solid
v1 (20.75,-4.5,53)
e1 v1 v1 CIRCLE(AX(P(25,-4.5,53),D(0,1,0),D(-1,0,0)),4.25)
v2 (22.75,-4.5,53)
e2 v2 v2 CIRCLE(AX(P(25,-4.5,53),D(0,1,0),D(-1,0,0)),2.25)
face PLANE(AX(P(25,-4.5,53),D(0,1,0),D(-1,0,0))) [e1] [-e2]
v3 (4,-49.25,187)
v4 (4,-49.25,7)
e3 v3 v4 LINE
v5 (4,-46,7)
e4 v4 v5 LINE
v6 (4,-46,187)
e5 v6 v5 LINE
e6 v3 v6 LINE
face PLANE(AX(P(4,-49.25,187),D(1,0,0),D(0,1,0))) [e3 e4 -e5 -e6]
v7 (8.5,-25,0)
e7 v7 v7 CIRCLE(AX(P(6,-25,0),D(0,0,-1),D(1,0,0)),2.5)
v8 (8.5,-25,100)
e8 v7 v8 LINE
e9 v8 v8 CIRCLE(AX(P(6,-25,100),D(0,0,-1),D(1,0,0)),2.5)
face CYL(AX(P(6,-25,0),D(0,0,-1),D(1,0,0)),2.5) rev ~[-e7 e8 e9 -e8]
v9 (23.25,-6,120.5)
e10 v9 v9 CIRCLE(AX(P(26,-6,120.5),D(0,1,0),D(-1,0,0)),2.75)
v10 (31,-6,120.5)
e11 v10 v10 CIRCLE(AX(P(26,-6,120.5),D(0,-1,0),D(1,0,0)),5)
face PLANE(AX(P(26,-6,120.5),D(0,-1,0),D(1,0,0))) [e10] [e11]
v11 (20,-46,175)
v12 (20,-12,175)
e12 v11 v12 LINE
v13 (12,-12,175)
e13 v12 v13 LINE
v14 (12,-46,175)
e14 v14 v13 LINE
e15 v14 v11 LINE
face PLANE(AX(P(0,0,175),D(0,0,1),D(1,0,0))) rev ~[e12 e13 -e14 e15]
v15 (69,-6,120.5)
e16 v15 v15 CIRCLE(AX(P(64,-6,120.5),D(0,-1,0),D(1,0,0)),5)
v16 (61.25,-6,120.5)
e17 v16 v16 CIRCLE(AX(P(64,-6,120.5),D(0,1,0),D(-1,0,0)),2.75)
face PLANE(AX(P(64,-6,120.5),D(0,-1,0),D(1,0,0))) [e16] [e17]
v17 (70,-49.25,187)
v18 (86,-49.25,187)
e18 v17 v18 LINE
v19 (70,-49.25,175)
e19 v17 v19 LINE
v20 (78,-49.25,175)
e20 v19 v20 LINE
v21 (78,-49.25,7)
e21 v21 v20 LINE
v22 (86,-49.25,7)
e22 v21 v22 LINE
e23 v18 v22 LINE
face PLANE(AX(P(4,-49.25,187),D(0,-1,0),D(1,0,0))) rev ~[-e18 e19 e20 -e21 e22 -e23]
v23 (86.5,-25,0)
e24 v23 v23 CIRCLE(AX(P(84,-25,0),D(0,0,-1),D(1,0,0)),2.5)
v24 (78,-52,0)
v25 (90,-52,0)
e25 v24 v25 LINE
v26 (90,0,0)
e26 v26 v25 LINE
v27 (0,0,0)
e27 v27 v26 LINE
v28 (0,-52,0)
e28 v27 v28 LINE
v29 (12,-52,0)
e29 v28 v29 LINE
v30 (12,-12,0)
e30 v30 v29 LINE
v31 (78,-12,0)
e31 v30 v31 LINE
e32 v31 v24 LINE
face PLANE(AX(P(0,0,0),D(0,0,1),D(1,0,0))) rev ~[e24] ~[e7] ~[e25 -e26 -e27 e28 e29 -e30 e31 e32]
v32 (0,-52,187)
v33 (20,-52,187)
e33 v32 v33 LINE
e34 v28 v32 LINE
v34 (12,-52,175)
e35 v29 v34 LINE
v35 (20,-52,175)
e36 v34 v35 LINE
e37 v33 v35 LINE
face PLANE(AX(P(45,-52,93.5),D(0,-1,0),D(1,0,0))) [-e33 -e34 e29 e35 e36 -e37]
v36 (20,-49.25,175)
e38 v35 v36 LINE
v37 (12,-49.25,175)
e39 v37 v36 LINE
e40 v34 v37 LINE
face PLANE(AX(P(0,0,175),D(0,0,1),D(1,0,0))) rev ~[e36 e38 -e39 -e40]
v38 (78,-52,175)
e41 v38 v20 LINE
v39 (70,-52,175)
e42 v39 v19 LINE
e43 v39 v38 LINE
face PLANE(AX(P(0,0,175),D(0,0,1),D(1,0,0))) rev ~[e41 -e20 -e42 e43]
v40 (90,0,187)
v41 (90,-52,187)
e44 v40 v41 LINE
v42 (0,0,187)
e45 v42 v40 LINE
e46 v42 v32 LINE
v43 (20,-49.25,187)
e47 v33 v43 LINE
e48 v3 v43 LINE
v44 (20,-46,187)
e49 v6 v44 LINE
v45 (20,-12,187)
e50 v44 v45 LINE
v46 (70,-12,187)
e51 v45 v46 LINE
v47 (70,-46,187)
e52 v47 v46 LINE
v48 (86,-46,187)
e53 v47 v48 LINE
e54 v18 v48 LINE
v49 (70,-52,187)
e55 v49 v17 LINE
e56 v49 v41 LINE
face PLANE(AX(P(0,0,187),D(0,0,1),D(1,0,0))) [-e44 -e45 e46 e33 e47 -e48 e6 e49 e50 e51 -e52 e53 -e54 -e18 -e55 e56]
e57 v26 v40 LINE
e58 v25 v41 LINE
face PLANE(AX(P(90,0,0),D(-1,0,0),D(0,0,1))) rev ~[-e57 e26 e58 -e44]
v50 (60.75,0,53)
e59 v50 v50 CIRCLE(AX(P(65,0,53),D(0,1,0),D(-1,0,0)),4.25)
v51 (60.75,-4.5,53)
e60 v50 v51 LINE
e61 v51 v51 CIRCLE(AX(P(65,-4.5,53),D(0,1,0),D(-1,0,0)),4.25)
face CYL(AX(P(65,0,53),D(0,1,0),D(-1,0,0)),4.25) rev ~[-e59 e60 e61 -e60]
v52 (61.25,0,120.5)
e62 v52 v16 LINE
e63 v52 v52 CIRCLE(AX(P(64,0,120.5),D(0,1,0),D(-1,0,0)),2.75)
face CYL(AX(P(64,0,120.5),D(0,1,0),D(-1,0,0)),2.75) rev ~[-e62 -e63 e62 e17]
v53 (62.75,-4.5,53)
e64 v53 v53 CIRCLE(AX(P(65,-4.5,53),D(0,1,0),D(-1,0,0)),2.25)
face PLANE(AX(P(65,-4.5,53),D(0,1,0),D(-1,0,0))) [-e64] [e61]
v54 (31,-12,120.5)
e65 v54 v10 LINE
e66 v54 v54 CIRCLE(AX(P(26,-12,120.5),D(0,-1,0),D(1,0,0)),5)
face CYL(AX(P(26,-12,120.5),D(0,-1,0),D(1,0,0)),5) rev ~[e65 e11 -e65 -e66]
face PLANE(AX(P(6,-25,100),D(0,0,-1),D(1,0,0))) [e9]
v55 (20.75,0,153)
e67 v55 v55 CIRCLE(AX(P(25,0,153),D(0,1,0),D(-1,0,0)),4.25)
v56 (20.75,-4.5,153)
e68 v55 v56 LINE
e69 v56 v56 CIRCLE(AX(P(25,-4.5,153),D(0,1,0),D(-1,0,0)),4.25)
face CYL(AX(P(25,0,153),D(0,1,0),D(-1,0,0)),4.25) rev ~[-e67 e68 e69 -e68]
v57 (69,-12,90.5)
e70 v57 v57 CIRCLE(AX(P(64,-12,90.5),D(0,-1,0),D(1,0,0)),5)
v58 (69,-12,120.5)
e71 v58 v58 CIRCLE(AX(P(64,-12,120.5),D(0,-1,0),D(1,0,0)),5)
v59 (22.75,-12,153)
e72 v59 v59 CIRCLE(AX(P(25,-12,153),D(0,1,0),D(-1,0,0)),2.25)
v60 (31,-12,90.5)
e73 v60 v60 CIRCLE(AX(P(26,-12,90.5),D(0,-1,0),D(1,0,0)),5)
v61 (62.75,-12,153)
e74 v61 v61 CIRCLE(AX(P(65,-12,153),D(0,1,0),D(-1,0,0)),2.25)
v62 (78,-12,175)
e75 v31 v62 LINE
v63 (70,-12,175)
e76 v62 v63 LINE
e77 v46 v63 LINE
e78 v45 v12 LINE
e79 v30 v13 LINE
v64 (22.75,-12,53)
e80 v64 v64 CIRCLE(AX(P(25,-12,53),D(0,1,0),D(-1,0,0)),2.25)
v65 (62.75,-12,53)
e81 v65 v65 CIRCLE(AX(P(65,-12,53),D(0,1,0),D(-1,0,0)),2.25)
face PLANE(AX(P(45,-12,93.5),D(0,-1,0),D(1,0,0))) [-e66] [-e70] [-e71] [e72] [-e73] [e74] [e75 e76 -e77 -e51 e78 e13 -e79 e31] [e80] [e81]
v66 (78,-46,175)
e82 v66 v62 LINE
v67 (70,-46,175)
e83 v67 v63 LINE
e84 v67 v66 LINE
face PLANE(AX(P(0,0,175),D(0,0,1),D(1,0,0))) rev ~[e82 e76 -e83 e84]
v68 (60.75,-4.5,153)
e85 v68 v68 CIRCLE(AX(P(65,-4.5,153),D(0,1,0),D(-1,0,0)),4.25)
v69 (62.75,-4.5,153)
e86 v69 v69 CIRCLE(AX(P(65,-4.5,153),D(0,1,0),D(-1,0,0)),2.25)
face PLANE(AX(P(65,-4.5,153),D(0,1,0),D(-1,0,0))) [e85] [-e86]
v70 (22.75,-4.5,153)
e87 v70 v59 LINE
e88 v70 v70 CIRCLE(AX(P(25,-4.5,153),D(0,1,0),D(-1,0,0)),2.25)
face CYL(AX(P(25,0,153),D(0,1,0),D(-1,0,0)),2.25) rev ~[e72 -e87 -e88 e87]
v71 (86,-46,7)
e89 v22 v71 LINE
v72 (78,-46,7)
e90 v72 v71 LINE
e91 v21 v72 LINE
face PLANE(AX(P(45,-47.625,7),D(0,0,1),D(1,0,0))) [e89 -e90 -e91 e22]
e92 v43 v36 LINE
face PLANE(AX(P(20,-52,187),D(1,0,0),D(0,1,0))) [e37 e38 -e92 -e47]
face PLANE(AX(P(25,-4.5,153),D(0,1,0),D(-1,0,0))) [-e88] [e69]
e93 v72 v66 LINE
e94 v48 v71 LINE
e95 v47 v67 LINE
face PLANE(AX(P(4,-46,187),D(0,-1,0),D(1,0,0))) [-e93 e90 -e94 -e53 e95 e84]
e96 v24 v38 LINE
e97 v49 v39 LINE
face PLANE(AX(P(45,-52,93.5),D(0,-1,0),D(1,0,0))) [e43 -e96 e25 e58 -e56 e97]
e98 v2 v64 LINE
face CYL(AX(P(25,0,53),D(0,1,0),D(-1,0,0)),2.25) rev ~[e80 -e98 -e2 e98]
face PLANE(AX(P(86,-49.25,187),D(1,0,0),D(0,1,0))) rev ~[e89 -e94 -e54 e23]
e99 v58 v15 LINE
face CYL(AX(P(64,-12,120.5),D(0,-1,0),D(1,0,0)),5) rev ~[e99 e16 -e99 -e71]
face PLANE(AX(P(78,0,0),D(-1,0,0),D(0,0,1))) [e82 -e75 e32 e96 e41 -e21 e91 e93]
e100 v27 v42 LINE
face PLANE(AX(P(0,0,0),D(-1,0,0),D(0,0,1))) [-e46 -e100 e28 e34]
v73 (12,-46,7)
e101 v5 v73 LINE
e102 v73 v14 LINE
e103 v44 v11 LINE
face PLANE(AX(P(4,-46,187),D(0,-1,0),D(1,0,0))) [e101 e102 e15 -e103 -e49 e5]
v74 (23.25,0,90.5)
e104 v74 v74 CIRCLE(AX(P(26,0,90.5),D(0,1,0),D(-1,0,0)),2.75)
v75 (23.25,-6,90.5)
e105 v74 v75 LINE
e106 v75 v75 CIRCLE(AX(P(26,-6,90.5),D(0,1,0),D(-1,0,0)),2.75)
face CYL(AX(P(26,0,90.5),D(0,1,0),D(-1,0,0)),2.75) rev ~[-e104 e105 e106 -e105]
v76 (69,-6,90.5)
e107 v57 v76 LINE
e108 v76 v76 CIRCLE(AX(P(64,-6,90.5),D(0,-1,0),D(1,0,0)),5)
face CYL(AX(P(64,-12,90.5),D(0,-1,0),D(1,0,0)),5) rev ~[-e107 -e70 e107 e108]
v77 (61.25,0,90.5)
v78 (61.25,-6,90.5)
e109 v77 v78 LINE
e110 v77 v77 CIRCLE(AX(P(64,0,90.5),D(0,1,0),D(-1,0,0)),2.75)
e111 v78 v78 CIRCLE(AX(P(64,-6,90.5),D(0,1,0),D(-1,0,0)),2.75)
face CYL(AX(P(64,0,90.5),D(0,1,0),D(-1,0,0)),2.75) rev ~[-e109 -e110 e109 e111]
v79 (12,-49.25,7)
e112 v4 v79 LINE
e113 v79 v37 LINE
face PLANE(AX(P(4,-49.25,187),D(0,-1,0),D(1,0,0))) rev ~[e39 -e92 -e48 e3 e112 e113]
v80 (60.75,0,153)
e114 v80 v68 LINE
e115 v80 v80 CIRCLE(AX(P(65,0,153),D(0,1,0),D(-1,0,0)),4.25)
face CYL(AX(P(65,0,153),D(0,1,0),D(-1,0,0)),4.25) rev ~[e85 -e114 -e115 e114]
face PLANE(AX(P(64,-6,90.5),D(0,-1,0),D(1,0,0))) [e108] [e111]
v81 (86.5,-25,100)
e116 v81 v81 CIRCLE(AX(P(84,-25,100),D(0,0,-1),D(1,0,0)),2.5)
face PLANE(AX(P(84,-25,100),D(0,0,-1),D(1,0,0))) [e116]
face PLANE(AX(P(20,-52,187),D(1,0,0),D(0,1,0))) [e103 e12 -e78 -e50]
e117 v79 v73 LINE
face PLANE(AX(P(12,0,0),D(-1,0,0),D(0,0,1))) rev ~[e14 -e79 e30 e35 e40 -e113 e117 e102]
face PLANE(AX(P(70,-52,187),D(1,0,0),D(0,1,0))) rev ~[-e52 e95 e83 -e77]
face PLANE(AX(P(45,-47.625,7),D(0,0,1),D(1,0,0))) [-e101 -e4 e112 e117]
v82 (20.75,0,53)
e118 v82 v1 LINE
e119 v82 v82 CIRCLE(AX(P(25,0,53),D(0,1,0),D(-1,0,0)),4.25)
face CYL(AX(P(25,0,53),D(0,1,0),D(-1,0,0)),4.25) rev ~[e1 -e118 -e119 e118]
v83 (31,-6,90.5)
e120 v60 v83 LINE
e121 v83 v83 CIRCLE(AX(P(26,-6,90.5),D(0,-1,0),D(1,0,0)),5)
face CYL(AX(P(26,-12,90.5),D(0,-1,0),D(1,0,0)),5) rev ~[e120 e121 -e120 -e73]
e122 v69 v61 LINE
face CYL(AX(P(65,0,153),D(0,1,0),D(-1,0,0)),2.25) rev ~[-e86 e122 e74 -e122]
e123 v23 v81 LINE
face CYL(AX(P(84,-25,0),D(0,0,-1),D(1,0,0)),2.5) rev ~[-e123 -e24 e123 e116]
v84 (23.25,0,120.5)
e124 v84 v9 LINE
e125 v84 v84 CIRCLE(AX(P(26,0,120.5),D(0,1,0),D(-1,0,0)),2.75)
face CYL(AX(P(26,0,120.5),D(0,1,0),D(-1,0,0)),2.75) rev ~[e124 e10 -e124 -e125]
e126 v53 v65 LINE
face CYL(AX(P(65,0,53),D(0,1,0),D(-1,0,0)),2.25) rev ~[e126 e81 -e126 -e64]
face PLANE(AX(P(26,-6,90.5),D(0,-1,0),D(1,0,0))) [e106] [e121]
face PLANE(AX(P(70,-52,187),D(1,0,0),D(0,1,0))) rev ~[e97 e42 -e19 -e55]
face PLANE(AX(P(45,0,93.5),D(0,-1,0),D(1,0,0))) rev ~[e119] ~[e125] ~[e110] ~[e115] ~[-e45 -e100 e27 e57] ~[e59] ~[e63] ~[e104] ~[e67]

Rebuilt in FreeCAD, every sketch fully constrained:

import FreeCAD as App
import Part
import Sketcher

V = App.Vector
Q = App.Units.Quantity


def faces_at(feature, points):
    """Names of the faces that lie closest to the given points."""
    faces = feature.Shape.Faces
    near = lambda p: min(range(len(faces)), key=lambda i: faces[i].distToShape(Part.Vertex(*p))[0])
    return sorted({f"Face{near(p) + 1}" for p in points})


def add_polygon(sketch, points):
    """Adds a closed chain of lines whose ends are joined by coincident constraints."""
    first, n = sketch.GeometryCount, len(points)
    for a, b in zip(points, points[1:] + points[:1]):
        sketch.addGeometry(Part.LineSegment(App.Vector(*a, 0), App.Vector(*b, 0)), False)
    for i in range(n):
        sketch.addConstraint(Sketcher.Constraint("Coincident", first + i, 2, first + (i + 1) % n, 1))

doc = App.newDocument("Part")
params = doc.addObject("Spreadsheet::Sheet", "Params")
for row, (alias, value) in enumerate([
    ("sketch1_width", "90 mm"),
    ("sketch1_height", "187 mm"),
    ("pad1_length", "52 mm"),
    ("thickness_wall", "12 mm"),
    ("sketch2_width", "50 mm"),
    ("sketch2_height", "40 mm"),
    ("pocket1_length", "25 mm"),
    ("sketch3_diameter", "4.5 mm"),
    ("sketch3_diameter2", "5.5 mm"),
    ("sketch4_diameter", "10 mm"),
    ("pocket3_length", "6 mm"),
    ("sketch5_diameter", "8.5 mm"),
    ("pocket4_length", "4.5 mm"),
    ("sketch6_diameter", "5 mm"),
    ("pocket5_length", "100 mm"),
    ("sketch7_width", "82 mm"),
    ("sketch7_height", "3.25 mm"),
    ("pocket6_length", "180 mm"),
], start=1):
    params.set(f"A{row}", alias)
    params.set(f"B{row}", "=" + value)
    params.setAlias(f"B{row}", alias)

body = doc.addObject("PartDesign::Body", "Body")

# Sketch on XZ plane
sketch1 = body.newObject("Sketcher::SketchObject", "Sketch")
sketch1.AttachmentSupport = (doc.getObject("XZ_Plane"), [""])
sketch1.MapMode = "FlatFace"
add_polygon(sketch1, [(0, 187), (0, 0), (90, 0), (90, 187)])  # lines 0-3
sketch1.addConstraint([
    Sketcher.Constraint("Vertical", 0),
    Sketcher.Constraint("Horizontal", 1),
    Sketcher.Constraint("Vertical", 2),
    Sketcher.Constraint("Horizontal", 3),
    Sketcher.Constraint("Coincident", 0, 2, -1, 1),
    Sketcher.Constraint("DistanceX", 1, 1, 1, 2, Q("90 mm")),
    Sketcher.Constraint("DistanceY", 0, 2, 0, 1, Q("187 mm")),
])
sketch1.setExpression("Constraints[9]", "Params.sketch1_width")
sketch1.setExpression("Constraints[10]", "Params.sketch1_height")
pad1 = body.newObject("PartDesign::Pad", "Pad")
pad1.Profile = sketch1
pad1.setExpression("Length", "Params.pad1_length")
doc.recompute()

thickness = body.newObject("PartDesign::Thickness", "Thickness")
thickness.Base = (pad1, faces_at(pad1, [(45, -52, 93.5), (45, -26, 0)]))
thickness.setExpression("Value", "Params.thickness_wall")
thickness.Reversed = True
thickness.Join = "Arc"

# Sketch on XY plane
sketch2 = body.newObject("Sketcher::SketchObject", "Sketch001")
sketch2.AttachmentSupport = (doc.getObject("XY_Plane"), [""])
sketch2.MapMode = "FlatFace"
sketch2.AttachmentOffset = App.Placement(V(0, 0, 187), App.Rotation())
add_polygon(sketch2, [(20, -12), (20, -52), (70, -52), (70, -12)])  # lines 0-3
sketch2.addConstraint([
    Sketcher.Constraint("Vertical", 0),
    Sketcher.Constraint("Horizontal", 1),
    Sketcher.Constraint("Vertical", 2),
    Sketcher.Constraint("Horizontal", 3),
    Sketcher.Constraint("DistanceX", 1, 1, 1, 2, Q("50 mm")),
    Sketcher.Constraint("DistanceY", 0, 2, 0, 1, Q("40 mm")),
    Sketcher.Constraint("DistanceX", -1, 1, 0, 2, Q("20 mm")),
    Sketcher.Constraint("DistanceY", 0, 2, -1, 1, Q("52 mm")),
])
sketch2.setExpression("Constraints[8]", "Params.sketch2_width")
sketch2.setExpression("Constraints[9]", "Params.sketch2_height")
pocket1 = body.newObject("PartDesign::Pocket", "Pocket")
pocket1.Profile = sketch2
pocket1.setExpression("Length", "Params.pocket1_length")

# Sketch on XZ plane
sketch3 = body.newObject("Sketcher::SketchObject", "Sketch002")
sketch3.AttachmentSupport = (doc.getObject("XZ_Plane"), [""])
sketch3.MapMode = "FlatFace"
sketch3.addGeometry([
    Part.Circle(V(65, 53, 0), V(0, 0, 1), 2.2),  # 0
    Part.Circle(V(25, 53, 0), V(0, 0, 1), 2.2),  # 1
    Part.Circle(V(65, 153, 0), V(0, 0, 1), 2.2),  # 2
    Part.Circle(V(25, 153, 0), V(0, 0, 1), 2.2),  # 3
    Part.Circle(V(26, 120.5, 0), V(0, 0, 1), 2.8),  # 4
    Part.Circle(V(64, 120.5, 0), V(0, 0, 1), 2.8),  # 5
    Part.Circle(V(26, 90.5, 0), V(0, 0, 1), 2.8),  # 6
    Part.Circle(V(64, 90.5, 0), V(0, 0, 1), 2.8),  # 7
], False)
sketch3.addConstraint([
    Sketcher.Constraint("Equal", 0, 1),
    Sketcher.Constraint("Equal", 1, 2),
    Sketcher.Constraint("Equal", 2, 3),
    Sketcher.Constraint("Equal", 4, 5),
    Sketcher.Constraint("Equal", 5, 6),
    Sketcher.Constraint("Equal", 6, 7),
    Sketcher.Constraint("Horizontal", 0, 3, 1, 3),
    Sketcher.Constraint("Horizontal", 2, 3, 3, 3),
    Sketcher.Constraint("Horizontal", 4, 3, 5, 3),
    Sketcher.Constraint("Horizontal", 6, 3, 7, 3),
    Sketcher.Constraint("Vertical", 0, 3, 2, 3),
    Sketcher.Constraint("Vertical", 1, 3, 3, 3),
    Sketcher.Constraint("Vertical", 4, 3, 6, 3),
    Sketcher.Constraint("Vertical", 5, 3, 7, 3),
    Sketcher.Constraint("Diameter", 0, Q("4.5 mm")),
    Sketcher.Constraint("Diameter", 4, Q("5.5 mm")),
    Sketcher.Constraint("DistanceX", -1, 1, 0, 3, Q("65 mm")),
    Sketcher.Constraint("DistanceY", -1, 1, 0, 3, Q("53 mm")),
    Sketcher.Constraint("DistanceX", -1, 1, 1, 3, Q("25 mm")),
    Sketcher.Constraint("DistanceY", -1, 1, 2, 3, Q("153 mm")),
    Sketcher.Constraint("DistanceX", -1, 1, 4, 3, Q("26 mm")),
    Sketcher.Constraint("DistanceX", -1, 1, 5, 3, Q("64 mm")),
    Sketcher.Constraint("DistanceY", 6, 3, 4, 3, Q("30 mm")),
    Sketcher.Constraint("DistanceY", -1, 1, 4, 3, Q("120.5 mm")),
])
sketch3.setExpression("Constraints[14]", "Params.sketch3_diameter")
sketch3.setExpression("Constraints[15]", "Params.sketch3_diameter2")
pocket2 = body.newObject("PartDesign::Pocket", "Pocket001")
pocket2.Profile = sketch3
pocket2.Type = "ThroughAll"
pocket2.Reversed = True

# Sketch on XZ plane
sketch4 = body.newObject("Sketcher::SketchObject", "Sketch003")
sketch4.AttachmentSupport = (doc.getObject("XZ_Plane"), [""])
sketch4.MapMode = "FlatFace"
sketch4.AttachmentOffset = App.Placement(V(0, 0, 12), App.Rotation())
sketch4.addGeometry([
    Part.Circle(V(26, 120, 0), V(0, 0, 1), 5),
    Part.Circle(V(64, 120, 0), V(0, 0, 1), 5),
    Part.Circle(V(26, 90, 0), V(0, 0, 1), 5),
    Part.Circle(V(64, 90, 0), V(0, 0, 1), 5),
], False)
sketch4.addConstraint([
    Sketcher.Constraint("Equal", 0, 1),
    Sketcher.Constraint("Equal", 1, 2),
    Sketcher.Constraint("Equal", 2, 3),
    Sketcher.Constraint("Horizontal", 0, 3, 1, 3),
    Sketcher.Constraint("Horizontal", 2, 3, 3, 3),
    Sketcher.Constraint("Vertical", 0, 3, 2, 3),
    Sketcher.Constraint("Vertical", 1, 3, 3, 3),
    Sketcher.Constraint("Diameter", 0, Q("10 mm")),
    Sketcher.Constraint("DistanceX", -1, 1, 0, 3, Q("26 mm")),
    Sketcher.Constraint("DistanceX", -1, 1, 1, 3, Q("64 mm")),
    Sketcher.Constraint("DistanceY", 2, 3, 0, 3, Q("30 mm")),
    Sketcher.Constraint("DistanceY", -1, 1, 0, 3, Q("120.5 mm")),
])
sketch4.setExpression("Constraints[7]", "Params.sketch4_diameter")
pocket3 = body.newObject("PartDesign::Pocket", "Pocket002")
pocket3.Profile = sketch4
pocket3.setExpression("Length", "Params.pocket3_length")

# Sketch on XZ plane
sketch5 = body.newObject("Sketcher::SketchObject", "Sketch004")
sketch5.AttachmentSupport = (doc.getObject("XZ_Plane"), [""])
sketch5.MapMode = "FlatFace"
sketch5.addGeometry([
    Part.Circle(V(65, 153, 0), V(0, 0, 1), 4.2),
    Part.Circle(V(25, 153, 0), V(0, 0, 1), 4.2),
    Part.Circle(V(65, 53, 0), V(0, 0, 1), 4.2),
    Part.Circle(V(25, 53, 0), V(0, 0, 1), 4.2),
], False)
sketch5.addConstraint([
    Sketcher.Constraint("Equal", 0, 1),
    Sketcher.Constraint("Equal", 1, 2),
    Sketcher.Constraint("Equal", 2, 3),
    Sketcher.Constraint("Horizontal", 0, 3, 1, 3),
    Sketcher.Constraint("Horizontal", 2, 3, 3, 3),
    Sketcher.Constraint("Vertical", 0, 3, 2, 3),
    Sketcher.Constraint("Vertical", 1, 3, 3, 3),
    Sketcher.Constraint("Diameter", 0, Q("8.5 mm")),
    Sketcher.Constraint("DistanceX", -1, 1, 0, 3, Q("65 mm")),
    Sketcher.Constraint("DistanceY", -1, 1, 0, 3, Q("153 mm")),
    Sketcher.Constraint("DistanceX", -1, 1, 1, 3, Q("25 mm")),
    Sketcher.Constraint("DistanceY", -1, 1, 2, 3, Q("53 mm")),
])
sketch5.setExpression("Constraints[7]", "Params.sketch5_diameter")
pocket4 = body.newObject("PartDesign::Pocket", "Pocket003")
pocket4.Profile = sketch5
pocket4.setExpression("Length", "Params.pocket4_length")
pocket4.Reversed = True

# Sketch on XY plane
sketch6 = body.newObject("Sketcher::SketchObject", "Sketch005")
sketch6.AttachmentSupport = (doc.getObject("XY_Plane"), [""])
sketch6.MapMode = "FlatFace"
sketch6.addGeometry([
    Part.Circle(V(6, -25, 0), V(0, 0, 1), 2.5),
    Part.Circle(V(84, -25, 0), V(0, 0, 1), 2.5),
], False)
sketch6.addConstraint([
    Sketcher.Constraint("Equal", 0, 1),
    Sketcher.Constraint("Horizontal", 0, 3, 1, 3),
    Sketcher.Constraint("Diameter", 0, Q("5 mm")),
    Sketcher.Constraint("DistanceX", -1, 1, 0, 3, Q("6 mm")),
    Sketcher.Constraint("DistanceY", 0, 3, -1, 1, Q("25 mm")),
    Sketcher.Constraint("DistanceX", -1, 1, 1, 3, Q("84 mm")),
])
sketch6.setExpression("Constraints[2]", "Params.sketch6_diameter")
pocket5 = body.newObject("PartDesign::Pocket", "Pocket004")
pocket5.Profile = sketch6
pocket5.setExpression("Length", "Params.pocket5_length")
pocket5.Reversed = True

# Sketch on XY plane
sketch7 = body.newObject("Sketcher::SketchObject", "Sketch006")
sketch7.AttachmentSupport = (doc.getObject("XY_Plane"), [""])
sketch7.MapMode = "FlatFace"
sketch7.AttachmentOffset = App.Placement(V(0, 0, 187), App.Rotation())
add_polygon(sketch7, [(4, -46), (4, -49.2), (86, -49.2), (86, -46)])  # lines 0-3
sketch7.addConstraint([
    Sketcher.Constraint("Vertical", 0),
    Sketcher.Constraint("Horizontal", 1),
    Sketcher.Constraint("Vertical", 2),
    Sketcher.Constraint("Horizontal", 3),
    Sketcher.Constraint("DistanceX", 1, 1, 1, 2, Q("82 mm")),
    Sketcher.Constraint("DistanceX", -1, 1, 0, 2, Q("4 mm")),
    Sketcher.Constraint("DistanceY", 2, 2, -1, 1, Q("46 mm")),
    Sketcher.Constraint("DistanceY", 0, 2, 0, 1, Q("3.25 mm")),
])
sketch7.setExpression("Constraints[8]", "Params.sketch7_width")
sketch7.setExpression("Constraints[11]", "Params.sketch7_height")
pocket6 = body.newObject("PartDesign::Pocket", "Pocket005")
pocket6.Profile = sketch7
pocket6.setExpression("Length", "Params.pocket6_length")

doc.recompute()
